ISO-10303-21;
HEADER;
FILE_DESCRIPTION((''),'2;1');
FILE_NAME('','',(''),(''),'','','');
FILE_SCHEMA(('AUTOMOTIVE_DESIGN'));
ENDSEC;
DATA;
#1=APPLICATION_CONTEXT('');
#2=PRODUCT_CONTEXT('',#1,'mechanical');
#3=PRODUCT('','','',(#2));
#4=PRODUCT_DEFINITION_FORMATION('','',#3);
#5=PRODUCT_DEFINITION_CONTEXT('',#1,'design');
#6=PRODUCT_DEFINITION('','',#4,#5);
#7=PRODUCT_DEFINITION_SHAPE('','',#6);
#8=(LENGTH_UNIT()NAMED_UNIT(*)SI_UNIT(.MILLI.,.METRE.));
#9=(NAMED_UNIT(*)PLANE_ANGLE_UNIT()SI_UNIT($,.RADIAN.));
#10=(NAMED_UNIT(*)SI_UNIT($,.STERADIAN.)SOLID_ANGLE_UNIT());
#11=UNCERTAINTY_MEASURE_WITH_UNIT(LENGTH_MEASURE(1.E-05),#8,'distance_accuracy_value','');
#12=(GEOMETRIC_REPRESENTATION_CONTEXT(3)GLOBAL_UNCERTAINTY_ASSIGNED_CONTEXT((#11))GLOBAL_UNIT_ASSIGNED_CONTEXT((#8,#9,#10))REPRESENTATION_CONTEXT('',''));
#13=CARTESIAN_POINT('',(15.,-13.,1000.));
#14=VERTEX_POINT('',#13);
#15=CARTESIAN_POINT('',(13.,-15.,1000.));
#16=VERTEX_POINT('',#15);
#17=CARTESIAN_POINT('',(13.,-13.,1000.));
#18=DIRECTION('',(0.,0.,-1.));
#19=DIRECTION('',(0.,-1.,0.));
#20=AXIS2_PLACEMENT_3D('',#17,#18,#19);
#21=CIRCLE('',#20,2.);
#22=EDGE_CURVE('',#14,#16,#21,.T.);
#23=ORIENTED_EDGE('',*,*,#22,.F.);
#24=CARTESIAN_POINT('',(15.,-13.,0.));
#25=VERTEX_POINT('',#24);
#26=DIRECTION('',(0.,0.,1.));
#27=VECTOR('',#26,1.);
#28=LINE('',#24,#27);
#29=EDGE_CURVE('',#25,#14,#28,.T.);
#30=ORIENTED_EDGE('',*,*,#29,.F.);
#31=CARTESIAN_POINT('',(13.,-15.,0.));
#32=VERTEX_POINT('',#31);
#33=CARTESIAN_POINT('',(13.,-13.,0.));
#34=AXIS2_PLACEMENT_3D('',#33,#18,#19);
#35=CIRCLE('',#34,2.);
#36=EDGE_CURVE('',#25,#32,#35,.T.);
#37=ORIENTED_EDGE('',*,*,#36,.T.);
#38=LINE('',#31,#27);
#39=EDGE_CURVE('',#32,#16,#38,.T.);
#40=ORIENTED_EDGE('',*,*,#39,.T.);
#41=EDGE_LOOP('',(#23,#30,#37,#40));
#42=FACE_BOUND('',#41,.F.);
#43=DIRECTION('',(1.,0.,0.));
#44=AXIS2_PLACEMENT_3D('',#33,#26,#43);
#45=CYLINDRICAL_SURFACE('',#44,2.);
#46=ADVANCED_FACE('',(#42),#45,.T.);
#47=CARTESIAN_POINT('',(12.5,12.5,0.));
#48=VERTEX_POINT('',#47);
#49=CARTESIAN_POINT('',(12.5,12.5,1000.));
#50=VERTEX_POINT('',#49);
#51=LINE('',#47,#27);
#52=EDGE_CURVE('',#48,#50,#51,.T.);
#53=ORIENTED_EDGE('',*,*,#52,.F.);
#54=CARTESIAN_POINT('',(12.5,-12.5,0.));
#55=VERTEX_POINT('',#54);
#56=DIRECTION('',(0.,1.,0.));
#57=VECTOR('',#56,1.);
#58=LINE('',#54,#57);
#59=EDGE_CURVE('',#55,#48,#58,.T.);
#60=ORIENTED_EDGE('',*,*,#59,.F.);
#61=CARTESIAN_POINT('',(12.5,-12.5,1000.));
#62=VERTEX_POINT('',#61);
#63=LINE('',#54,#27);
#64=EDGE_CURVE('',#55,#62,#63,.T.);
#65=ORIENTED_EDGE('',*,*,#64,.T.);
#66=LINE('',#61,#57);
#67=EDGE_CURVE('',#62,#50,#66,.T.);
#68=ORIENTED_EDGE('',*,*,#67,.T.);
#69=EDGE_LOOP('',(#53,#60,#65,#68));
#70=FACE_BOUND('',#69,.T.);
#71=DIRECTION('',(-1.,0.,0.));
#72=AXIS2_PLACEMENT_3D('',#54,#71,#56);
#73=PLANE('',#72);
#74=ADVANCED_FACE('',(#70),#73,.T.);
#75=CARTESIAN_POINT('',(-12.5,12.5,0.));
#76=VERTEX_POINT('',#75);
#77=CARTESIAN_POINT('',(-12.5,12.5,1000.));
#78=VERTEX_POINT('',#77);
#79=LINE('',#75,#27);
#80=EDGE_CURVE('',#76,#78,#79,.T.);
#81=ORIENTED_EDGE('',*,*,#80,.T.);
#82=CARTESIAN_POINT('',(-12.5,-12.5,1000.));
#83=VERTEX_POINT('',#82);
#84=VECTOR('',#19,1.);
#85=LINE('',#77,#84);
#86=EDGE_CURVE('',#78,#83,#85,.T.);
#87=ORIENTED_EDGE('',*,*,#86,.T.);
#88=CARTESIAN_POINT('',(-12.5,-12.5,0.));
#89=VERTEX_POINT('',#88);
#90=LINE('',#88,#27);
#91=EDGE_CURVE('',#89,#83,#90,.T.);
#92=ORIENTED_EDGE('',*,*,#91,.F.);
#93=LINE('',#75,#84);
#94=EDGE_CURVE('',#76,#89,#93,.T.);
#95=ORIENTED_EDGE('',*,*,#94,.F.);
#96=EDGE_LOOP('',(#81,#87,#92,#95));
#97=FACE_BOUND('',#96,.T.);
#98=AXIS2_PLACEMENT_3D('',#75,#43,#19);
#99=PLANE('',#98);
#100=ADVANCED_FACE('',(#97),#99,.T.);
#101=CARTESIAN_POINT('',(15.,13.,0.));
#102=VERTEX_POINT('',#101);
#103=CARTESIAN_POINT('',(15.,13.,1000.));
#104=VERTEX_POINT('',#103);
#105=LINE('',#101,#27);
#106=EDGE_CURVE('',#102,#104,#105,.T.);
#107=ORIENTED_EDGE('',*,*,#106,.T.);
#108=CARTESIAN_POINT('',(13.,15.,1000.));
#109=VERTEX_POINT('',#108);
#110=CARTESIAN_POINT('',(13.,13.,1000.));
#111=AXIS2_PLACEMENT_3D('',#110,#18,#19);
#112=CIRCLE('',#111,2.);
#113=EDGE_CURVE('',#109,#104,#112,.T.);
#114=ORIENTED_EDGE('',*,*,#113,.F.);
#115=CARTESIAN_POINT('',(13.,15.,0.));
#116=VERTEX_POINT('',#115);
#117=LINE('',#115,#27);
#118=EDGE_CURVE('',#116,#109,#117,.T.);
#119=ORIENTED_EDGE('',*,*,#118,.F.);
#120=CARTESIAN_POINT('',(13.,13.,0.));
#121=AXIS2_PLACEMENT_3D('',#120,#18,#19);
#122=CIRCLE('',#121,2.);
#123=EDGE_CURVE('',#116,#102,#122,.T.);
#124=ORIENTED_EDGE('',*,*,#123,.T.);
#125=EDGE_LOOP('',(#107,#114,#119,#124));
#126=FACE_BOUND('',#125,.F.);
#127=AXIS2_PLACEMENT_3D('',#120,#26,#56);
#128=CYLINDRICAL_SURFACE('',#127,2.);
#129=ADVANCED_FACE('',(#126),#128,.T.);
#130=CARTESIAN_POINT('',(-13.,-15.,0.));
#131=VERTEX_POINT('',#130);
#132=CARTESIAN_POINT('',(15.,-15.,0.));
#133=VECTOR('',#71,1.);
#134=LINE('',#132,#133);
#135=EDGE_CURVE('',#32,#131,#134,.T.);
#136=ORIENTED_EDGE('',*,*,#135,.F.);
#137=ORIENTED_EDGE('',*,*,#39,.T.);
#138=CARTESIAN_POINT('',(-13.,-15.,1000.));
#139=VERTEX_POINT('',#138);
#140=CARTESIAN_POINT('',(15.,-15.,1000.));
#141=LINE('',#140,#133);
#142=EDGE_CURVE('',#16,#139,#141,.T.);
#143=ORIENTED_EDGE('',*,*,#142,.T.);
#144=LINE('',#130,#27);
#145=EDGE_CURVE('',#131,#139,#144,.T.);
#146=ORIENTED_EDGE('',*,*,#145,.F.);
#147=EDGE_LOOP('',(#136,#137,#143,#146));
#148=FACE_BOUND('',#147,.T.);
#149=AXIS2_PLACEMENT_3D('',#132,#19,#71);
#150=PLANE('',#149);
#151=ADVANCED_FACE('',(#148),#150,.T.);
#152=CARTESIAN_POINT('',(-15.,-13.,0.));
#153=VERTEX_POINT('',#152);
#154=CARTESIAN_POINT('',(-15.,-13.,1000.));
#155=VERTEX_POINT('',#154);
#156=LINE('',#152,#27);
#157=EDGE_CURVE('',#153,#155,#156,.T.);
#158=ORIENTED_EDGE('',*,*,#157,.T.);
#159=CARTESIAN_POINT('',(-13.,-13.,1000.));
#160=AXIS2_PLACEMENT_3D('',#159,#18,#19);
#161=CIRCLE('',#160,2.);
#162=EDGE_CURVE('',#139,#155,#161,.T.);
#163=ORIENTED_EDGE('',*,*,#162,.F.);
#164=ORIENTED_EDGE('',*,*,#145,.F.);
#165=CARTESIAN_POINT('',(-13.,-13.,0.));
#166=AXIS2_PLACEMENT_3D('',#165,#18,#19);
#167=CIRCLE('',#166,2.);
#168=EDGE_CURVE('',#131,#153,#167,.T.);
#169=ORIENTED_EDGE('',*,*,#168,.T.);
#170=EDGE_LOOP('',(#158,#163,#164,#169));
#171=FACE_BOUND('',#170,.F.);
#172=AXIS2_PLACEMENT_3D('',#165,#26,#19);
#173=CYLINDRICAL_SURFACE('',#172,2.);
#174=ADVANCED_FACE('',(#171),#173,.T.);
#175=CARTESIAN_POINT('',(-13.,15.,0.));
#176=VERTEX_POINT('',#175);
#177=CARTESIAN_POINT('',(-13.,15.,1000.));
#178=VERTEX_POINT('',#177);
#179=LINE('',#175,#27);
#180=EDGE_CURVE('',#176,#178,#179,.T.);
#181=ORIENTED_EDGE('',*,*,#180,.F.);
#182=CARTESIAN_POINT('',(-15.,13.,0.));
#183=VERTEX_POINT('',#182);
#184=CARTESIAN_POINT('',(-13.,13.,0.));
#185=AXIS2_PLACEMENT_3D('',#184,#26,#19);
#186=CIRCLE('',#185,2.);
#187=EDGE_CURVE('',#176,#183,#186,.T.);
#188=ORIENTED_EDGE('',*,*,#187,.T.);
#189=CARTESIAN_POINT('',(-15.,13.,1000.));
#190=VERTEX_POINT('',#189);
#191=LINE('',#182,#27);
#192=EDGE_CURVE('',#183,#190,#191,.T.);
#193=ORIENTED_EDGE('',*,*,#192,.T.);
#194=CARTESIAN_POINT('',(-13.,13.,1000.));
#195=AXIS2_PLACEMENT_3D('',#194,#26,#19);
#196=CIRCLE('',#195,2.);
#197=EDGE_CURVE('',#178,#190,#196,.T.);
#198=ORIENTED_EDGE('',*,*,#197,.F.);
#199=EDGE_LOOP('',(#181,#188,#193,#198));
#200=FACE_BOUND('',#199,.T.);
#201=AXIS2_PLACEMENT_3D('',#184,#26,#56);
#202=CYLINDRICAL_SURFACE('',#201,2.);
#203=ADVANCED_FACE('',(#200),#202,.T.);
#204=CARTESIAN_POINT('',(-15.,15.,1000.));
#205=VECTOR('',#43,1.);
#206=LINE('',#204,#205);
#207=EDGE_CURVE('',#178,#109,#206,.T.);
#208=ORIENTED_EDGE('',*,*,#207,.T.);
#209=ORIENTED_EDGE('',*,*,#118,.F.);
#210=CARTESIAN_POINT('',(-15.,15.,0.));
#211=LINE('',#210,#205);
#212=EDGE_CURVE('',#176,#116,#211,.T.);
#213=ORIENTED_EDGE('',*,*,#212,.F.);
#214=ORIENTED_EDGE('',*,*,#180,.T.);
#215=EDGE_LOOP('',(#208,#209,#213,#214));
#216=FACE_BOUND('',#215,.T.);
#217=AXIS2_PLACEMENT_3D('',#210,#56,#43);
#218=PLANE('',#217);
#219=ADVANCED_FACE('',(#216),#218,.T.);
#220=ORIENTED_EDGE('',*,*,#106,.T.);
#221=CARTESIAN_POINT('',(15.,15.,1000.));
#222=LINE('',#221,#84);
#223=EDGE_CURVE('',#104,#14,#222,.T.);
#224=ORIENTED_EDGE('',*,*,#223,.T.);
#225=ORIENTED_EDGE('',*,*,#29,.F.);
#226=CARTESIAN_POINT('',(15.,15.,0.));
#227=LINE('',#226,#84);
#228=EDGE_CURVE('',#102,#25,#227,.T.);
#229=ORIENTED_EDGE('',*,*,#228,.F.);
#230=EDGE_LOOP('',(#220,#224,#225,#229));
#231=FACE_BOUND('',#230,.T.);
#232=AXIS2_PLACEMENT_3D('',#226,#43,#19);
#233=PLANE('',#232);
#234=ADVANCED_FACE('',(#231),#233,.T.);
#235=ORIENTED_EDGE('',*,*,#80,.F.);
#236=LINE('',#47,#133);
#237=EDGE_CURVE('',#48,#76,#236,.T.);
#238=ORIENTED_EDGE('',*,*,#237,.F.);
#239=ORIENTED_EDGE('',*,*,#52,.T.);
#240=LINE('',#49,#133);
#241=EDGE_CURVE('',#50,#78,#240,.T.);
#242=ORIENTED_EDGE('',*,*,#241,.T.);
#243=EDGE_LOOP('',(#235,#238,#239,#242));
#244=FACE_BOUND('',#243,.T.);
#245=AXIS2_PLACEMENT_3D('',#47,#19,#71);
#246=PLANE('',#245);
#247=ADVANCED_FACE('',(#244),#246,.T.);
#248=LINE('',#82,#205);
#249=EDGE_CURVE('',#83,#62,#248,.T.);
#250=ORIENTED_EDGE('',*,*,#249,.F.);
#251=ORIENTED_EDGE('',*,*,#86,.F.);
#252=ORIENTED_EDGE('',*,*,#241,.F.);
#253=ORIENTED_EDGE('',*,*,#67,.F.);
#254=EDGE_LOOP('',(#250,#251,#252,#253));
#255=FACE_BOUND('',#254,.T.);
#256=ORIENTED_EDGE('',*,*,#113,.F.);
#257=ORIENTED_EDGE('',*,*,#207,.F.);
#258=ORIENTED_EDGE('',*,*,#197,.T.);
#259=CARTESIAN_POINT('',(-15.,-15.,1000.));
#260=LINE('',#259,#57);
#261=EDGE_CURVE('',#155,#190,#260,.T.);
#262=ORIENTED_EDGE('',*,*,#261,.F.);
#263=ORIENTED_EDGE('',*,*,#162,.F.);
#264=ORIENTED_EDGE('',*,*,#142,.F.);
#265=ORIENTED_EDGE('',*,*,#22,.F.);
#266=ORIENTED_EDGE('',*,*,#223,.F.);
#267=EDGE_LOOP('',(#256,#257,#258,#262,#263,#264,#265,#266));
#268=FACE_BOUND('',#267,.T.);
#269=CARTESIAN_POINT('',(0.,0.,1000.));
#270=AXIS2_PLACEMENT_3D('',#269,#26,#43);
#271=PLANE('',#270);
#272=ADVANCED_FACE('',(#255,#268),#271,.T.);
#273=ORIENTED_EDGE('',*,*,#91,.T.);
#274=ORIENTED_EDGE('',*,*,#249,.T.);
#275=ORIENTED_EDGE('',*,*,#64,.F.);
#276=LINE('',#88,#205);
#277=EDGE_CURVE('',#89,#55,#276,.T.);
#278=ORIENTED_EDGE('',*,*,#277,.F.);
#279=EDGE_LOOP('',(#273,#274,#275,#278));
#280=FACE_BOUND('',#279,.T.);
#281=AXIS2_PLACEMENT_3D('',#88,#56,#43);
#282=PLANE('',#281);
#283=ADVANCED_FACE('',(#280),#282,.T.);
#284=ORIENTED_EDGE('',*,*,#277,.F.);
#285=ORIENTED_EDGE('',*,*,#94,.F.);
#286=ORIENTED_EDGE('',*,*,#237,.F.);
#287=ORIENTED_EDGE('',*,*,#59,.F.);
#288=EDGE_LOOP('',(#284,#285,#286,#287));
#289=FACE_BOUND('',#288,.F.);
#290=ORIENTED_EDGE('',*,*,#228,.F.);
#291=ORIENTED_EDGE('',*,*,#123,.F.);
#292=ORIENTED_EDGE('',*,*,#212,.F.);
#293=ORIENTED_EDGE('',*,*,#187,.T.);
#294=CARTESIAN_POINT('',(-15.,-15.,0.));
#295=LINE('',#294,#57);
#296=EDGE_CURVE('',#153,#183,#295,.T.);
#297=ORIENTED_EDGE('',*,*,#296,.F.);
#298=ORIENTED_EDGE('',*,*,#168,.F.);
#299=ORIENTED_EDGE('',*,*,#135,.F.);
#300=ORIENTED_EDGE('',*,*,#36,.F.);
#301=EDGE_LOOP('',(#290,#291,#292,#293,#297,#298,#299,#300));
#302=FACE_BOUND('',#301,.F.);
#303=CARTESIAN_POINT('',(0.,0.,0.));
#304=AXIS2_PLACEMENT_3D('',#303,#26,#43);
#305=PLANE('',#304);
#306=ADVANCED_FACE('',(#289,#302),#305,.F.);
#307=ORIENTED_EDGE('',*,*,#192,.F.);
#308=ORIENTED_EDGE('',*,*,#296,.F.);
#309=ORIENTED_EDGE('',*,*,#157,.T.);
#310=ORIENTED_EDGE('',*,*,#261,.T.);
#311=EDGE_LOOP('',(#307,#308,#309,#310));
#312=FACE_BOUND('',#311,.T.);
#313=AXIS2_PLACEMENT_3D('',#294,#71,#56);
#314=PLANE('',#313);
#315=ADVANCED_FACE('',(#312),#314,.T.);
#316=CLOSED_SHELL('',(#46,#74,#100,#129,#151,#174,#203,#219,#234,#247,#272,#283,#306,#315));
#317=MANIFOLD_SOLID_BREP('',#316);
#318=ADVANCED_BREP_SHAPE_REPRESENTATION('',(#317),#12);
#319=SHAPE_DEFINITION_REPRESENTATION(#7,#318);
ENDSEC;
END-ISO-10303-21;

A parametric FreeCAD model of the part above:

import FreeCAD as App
import Part
import Sketcher
from FreeCAD import Vector


def edges_at(feature, points):
    """Names of the edges that pass closest to the given points."""
    edges = feature.Shape.Edges
    near = lambda p: min(range(len(edges)), key=lambda i: edges[i].distToShape(Part.Vertex(*p))[0])
    return sorted({f"Edge{near(p) + 1}" for p in points})


def add_polygon(sketch, points):
    """Adds a closed chain of lines whose ends are joined by coincident constraints."""
    first, n = sketch.GeometryCount, len(points)
    for a, b in zip(points, points[1:] + points[:1]):
        sketch.addGeometry(Part.LineSegment(App.Vector(*a, 0), App.Vector(*b, 0)), False)
    for i in range(n):
        sketch.addConstraint(Sketcher.Constraint("Coincident", first + i, 2, first + (i + 1) % n, 1))

doc = App.newDocument("Part")
params = doc.addObject("Spreadsheet::Sheet", "Params")
for row, (alias, value) in enumerate([
    ("sketch1_width", "30 mm"),
    ("pad1_length", "1000 mm"),
    ("fillet_radius", "2 mm"),
], start=1):
    params.set(f"A{row}", alias)
    params.set(f"B{row}", "=" + value)
    params.setAlias(f"B{row}", alias)

body = doc.addObject("PartDesign::Body", "Body")

sketch1 = body.newObject("Sketcher::SketchObject", "Sketch")
sketch1.AttachmentSupport = (doc.getObject("XY_Plane"), [""])
sketch1.MapMode = "FlatFace"
add_polygon(sketch1, [(15, 15), (-15, 15), (-15, -15), (15, -15)])
add_polygon(sketch1, [(-12, 12), (12, 12), (12, -12), (-12, -12)])
sketch1.addConstraint(Sketcher.Constraint("Horizontal", 0))
sketch1.addConstraint(Sketcher.Constraint("Vertical", 1))
sketch1.addConstraint(Sketcher.Constraint("Horizontal", 2))
sketch1.addConstraint(Sketcher.Constraint("Vertical", 3))
sketch1.addConstraint(Sketcher.Constraint("Horizontal", 4))
sketch1.addConstraint(Sketcher.Constraint("Vertical", 5))
sketch1.addConstraint(Sketcher.Constraint("Horizontal", 6))
sketch1.addConstraint(Sketcher.Constraint("Vertical", 7))
sketch1.addConstraint(Sketcher.Constraint("Symmetric", 0, 2, 2, 2, -1, 1))
sketch1.addConstraint(Sketcher.Constraint("Symmetric", 4, 2, 6, 2, -1, 1))
sketch1.addConstraint(Sketcher.Constraint("Equal", 2, 1))
sketch1.addConstraint(Sketcher.Constraint("Equal", 6, 5))
sketch1.addConstraint(Sketcher.Constraint("DistanceX", 0, 2, 0, 1, 30.0))
sketch1.addConstraint(Sketcher.Constraint("DistanceX", 4, 2, 3, 2, 2.5))
sketch1.setExpression("Constraints[20]", "Params.sketch1_width")
pad1 = body.newObject("PartDesign::Pad", "Pad")
pad1.Profile = sketch1
pad1.setExpression("Length", "Params.pad1_length")
doc.recompute()

fillet = body.newObject("PartDesign::Fillet", "Fillet")
fillet.Base = (pad1, edges_at(pad1, [
    (15, 15, 500),
    (-15, 15, 500),
    (-15, -15, 500),
    (15, -15, 500),
]))
fillet.setExpression("Radius", "Params.fillet_radius")

doc.recompute()
